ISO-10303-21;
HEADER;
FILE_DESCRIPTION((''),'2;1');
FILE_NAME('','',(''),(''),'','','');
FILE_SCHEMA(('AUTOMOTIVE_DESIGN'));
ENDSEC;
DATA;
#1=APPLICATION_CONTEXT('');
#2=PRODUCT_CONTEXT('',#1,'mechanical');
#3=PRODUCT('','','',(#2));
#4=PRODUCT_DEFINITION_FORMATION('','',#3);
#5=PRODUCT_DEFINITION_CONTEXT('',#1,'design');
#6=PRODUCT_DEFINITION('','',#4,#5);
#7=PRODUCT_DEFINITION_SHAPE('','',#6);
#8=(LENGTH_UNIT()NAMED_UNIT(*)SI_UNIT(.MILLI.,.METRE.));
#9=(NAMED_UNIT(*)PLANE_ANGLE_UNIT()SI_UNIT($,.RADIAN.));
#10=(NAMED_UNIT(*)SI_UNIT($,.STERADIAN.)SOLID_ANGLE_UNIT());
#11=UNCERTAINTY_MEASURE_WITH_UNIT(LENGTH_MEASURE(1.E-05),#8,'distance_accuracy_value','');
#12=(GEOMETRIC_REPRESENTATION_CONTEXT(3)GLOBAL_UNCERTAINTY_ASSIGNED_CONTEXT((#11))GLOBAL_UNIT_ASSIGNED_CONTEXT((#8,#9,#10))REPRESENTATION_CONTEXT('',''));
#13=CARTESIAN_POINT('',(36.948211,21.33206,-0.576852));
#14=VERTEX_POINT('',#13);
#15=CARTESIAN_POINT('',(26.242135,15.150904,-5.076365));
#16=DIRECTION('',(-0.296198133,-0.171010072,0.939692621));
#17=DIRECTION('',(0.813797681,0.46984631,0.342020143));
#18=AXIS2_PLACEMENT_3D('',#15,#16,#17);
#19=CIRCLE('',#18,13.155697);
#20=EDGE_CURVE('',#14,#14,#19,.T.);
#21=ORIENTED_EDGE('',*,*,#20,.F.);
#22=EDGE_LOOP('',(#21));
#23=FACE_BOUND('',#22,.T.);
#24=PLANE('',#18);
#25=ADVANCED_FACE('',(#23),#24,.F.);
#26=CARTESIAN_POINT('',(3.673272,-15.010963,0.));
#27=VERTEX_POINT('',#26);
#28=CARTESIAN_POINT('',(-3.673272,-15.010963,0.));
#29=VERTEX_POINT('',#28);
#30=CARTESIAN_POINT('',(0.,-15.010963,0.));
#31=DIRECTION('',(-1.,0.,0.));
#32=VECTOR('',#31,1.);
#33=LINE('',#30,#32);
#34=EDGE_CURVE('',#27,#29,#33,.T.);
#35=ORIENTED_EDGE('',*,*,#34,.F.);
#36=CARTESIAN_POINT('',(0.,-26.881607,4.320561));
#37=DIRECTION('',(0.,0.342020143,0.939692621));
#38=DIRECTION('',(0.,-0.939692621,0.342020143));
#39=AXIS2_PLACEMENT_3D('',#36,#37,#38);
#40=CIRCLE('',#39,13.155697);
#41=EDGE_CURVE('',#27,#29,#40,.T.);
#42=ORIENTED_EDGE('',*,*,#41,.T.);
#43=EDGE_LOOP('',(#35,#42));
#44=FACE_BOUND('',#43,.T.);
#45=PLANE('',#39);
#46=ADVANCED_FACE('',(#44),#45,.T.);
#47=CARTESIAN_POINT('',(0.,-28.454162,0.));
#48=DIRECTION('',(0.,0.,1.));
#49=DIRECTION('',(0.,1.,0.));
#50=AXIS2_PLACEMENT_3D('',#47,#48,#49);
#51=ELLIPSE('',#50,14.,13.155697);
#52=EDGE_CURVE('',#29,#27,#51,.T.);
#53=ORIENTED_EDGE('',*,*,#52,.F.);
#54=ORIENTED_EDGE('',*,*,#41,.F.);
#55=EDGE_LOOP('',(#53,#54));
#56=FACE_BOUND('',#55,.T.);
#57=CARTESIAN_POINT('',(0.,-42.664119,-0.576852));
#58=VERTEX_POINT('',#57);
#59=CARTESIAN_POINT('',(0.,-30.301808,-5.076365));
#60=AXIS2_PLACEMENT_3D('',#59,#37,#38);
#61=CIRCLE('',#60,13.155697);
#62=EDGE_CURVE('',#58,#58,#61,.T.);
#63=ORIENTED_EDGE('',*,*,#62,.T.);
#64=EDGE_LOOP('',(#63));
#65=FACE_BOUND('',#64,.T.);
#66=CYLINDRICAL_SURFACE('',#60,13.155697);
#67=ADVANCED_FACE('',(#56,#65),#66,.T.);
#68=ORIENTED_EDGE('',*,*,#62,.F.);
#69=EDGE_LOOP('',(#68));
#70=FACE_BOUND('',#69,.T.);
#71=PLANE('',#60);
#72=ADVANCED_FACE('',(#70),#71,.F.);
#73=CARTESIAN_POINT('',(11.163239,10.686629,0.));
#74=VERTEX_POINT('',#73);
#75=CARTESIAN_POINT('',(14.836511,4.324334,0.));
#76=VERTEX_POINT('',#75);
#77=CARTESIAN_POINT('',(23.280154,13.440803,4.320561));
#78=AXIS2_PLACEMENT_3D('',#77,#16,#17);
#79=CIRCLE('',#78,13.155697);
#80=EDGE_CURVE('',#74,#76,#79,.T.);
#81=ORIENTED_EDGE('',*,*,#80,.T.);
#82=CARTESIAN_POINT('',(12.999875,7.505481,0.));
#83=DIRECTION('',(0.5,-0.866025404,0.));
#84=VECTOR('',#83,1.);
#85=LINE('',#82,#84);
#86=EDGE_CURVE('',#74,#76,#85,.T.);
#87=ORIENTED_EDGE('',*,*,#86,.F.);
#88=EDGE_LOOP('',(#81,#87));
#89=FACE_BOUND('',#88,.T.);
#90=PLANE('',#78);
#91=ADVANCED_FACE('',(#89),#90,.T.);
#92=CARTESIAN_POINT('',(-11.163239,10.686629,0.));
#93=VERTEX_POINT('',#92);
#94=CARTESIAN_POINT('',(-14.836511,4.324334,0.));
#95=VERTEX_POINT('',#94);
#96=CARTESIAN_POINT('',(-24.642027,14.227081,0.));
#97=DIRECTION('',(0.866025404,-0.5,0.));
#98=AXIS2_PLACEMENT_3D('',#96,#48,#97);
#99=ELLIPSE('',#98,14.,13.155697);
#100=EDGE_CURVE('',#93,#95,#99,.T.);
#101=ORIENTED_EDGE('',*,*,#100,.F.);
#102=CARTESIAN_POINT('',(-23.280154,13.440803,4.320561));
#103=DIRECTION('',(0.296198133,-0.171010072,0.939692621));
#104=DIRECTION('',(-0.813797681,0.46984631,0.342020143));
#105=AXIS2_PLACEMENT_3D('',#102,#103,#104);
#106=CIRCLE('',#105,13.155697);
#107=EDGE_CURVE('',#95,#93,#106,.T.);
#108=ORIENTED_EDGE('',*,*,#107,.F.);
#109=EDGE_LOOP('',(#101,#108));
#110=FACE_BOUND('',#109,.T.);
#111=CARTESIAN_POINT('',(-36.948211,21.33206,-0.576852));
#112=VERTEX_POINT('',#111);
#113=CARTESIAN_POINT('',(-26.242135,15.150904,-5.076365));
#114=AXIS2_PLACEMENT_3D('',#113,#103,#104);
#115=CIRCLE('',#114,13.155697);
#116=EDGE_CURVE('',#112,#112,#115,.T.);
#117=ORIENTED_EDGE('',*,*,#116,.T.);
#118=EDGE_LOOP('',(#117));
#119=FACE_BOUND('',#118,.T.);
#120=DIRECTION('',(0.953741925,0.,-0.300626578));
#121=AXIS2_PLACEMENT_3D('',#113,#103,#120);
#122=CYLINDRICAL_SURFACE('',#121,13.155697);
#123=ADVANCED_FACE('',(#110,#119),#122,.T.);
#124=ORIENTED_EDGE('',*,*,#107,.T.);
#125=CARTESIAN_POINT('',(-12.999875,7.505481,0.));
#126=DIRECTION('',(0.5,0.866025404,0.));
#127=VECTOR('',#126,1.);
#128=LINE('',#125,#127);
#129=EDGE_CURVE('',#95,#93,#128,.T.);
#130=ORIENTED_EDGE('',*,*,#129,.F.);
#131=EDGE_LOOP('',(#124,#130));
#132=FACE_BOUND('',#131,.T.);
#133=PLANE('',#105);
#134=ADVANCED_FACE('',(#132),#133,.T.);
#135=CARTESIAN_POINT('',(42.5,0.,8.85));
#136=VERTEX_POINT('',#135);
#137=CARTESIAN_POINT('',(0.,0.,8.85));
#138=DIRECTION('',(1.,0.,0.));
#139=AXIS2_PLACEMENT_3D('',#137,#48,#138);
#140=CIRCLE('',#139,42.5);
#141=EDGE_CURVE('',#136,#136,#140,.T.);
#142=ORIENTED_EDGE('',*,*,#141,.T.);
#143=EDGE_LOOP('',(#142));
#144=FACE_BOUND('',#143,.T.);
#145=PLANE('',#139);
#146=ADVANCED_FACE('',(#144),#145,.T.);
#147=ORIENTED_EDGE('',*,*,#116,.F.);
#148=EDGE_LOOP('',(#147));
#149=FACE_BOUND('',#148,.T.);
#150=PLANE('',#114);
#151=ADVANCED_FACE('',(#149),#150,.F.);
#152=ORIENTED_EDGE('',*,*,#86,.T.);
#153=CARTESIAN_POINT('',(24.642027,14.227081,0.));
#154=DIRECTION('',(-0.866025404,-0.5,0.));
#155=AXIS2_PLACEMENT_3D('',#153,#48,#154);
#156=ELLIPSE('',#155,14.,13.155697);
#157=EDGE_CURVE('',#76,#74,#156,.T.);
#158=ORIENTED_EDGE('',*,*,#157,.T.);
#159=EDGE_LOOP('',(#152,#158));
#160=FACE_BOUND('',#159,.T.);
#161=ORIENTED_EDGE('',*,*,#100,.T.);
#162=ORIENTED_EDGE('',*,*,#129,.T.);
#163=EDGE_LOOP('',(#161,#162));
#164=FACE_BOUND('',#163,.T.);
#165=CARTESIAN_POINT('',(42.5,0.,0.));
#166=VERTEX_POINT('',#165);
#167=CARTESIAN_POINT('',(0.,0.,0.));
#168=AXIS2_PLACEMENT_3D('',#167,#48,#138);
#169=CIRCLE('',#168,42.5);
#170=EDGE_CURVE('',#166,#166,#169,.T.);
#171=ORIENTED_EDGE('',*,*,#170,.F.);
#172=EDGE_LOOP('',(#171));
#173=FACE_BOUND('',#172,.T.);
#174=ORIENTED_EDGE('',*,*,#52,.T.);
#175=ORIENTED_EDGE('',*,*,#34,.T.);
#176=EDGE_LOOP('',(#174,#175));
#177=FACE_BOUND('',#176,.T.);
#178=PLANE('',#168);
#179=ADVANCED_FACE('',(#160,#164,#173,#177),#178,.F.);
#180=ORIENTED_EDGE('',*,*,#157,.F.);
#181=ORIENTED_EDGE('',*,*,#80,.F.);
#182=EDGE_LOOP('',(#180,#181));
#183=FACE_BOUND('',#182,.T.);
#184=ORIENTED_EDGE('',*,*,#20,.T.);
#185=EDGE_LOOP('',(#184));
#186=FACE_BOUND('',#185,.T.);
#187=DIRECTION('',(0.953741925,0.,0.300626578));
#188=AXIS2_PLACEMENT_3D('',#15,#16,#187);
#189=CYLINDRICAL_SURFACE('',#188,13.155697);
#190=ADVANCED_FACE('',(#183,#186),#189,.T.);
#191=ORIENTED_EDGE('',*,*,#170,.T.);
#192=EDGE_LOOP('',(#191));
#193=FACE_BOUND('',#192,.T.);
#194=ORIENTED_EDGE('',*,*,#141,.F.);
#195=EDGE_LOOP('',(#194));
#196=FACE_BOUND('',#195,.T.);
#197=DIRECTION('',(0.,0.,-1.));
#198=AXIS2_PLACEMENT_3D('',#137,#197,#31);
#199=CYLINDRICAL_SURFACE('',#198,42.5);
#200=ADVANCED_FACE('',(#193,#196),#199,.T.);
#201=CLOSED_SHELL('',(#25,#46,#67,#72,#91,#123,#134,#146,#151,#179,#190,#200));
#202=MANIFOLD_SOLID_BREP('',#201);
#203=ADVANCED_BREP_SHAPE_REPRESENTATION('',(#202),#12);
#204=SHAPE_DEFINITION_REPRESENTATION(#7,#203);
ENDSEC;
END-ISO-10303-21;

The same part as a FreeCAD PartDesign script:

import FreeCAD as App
import Part
import Sketcher
from FreeCAD import Vector

doc = App.newDocument("Part")
body = doc.addObject("PartDesign::Body", "Body")

sketch1 = body.newObject("Sketcher::SketchObject", "Sketch")
sketch1.AttachmentSupport = (doc.getObject("XY_Plane"), [""])
sketch1.MapMode = "FlatFace"
sketch1.addGeometry(Part.Circle(Vector(0, 0, 0), Vector(0, 0, 1), 42), False)
sketch1.addConstraint([
    Sketcher.Constraint("Coincident", 0, 3, -1, 1),
    Sketcher.Constraint("Diameter", 0, 85.0),
])
pad1 = body.newObject("PartDesign::Pad", "Pad")
pad1.Profile = sketch1
pad1.Length = 8.85

sketch2 = body.newObject("Sketcher::SketchObject", "Sketch001")
sketch2.Placement = App.Placement(Vector(0, -1.755949, -4.82443), App.Rotation(Vector(-1, 0, 0), Vector(0, -0.939692621, 0.342020143), Vector(0, 0.342020143, 0.939692621), "ZXY"))
sketch2.addGeometry(Part.Circle(Vector(0, 27, 0), Vector(0, 0, 1), 13), False)
sketch2.addConstraint([
    Sketcher.Constraint("PointOnObject", 0, 3, -2),
    Sketcher.Constraint("Diameter", 0, 26.311393),
    Sketcher.Constraint("DistanceY", -1, 1, 0, 3, 26.738166),
])
pad2 = body.newObject("PartDesign::Pad", "Pad001")
pad2.Profile = sketch2
pad2.Length = 10
pad2.Reversed = True
doc.recompute()

polarpattern = body.newObject("PartDesign::PolarPattern", "PolarPattern")
polarpattern.Originals = [pad2]
polarpattern.Axis = (doc.getObject("Z_Axis"), [""])
polarpattern.Angle = 360
polarpattern.Occurrences = 3
body.Tip = polarpattern

doc.recompute()
